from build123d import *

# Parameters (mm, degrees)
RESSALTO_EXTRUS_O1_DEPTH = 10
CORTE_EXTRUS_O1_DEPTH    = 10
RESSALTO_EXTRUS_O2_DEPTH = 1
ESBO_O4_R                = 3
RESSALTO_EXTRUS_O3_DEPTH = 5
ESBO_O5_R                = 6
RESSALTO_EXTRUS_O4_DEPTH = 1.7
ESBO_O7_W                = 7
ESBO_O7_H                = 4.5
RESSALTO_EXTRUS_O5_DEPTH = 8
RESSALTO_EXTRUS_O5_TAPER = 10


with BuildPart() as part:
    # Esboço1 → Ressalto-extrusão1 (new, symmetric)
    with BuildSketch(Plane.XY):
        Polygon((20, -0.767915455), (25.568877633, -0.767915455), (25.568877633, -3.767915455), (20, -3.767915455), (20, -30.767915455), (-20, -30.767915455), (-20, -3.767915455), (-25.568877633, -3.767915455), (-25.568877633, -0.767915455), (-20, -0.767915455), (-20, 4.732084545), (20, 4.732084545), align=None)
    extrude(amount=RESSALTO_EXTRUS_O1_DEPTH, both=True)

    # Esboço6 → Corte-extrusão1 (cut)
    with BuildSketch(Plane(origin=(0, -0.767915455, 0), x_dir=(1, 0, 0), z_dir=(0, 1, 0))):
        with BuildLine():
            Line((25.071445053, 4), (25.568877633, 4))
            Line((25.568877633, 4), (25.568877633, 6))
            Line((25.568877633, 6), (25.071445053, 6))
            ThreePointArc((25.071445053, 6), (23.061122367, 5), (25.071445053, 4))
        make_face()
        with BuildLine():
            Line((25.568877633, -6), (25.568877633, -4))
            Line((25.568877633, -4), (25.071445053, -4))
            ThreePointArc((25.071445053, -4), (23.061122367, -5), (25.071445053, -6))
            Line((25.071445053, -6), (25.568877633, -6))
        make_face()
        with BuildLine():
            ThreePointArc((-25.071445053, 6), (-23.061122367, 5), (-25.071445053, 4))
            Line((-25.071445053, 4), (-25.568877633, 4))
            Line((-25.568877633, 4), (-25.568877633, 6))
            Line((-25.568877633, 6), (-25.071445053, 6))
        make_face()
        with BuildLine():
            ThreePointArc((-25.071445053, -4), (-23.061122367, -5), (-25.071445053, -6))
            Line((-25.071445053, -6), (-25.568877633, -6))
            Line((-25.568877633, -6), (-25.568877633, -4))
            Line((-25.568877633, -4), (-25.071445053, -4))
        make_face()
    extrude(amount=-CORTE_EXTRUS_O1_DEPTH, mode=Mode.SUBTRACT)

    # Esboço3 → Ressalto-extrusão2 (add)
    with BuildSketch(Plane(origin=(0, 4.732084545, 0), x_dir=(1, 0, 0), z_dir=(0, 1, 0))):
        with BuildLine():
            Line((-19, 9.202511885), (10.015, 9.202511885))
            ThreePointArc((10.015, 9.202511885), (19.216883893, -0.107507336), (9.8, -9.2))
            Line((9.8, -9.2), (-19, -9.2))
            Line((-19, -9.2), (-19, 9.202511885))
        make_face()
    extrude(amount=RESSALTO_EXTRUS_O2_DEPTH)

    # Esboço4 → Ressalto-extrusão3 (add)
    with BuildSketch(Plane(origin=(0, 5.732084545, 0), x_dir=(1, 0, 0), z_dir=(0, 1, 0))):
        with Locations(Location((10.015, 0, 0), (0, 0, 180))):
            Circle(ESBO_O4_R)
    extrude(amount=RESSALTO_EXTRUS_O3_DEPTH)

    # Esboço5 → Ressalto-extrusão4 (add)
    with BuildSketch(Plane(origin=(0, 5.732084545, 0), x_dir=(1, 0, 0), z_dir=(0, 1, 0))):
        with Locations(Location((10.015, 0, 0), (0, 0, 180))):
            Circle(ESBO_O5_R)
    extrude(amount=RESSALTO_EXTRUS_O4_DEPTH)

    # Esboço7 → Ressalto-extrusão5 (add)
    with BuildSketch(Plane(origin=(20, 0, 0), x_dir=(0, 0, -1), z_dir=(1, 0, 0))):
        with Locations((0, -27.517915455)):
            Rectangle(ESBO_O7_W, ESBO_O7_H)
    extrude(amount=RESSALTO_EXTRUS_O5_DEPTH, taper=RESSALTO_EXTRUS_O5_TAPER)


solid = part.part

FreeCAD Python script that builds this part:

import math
import FreeCAD as App
import Part
import Sketcher

V = App.Vector
Q = App.Units.Quantity


def add_polygon(sketch, points):
    """Adds a closed chain of lines whose ends are joined by coincident constraints."""
    first, n = sketch.GeometryCount, len(points)
    for a, b in zip(points, points[1:] + points[:1]):
        sketch.addGeometry(Part.LineSegment(App.Vector(*a, 0), App.Vector(*b, 0)), False)
    for i in range(n):
        sketch.addConstraint(Sketcher.Constraint("Coincident", first + i, 2, first + (i + 1) % n, 1))

doc = App.newDocument("Part")
params = doc.addObject("Spreadsheet::Sheet", "Params")
for row, (alias, value) in enumerate([
    ("sketch1_width", "40 mm"),
    ("sketch1_height", "3 mm"),
    ("sketch1_height2", "27 mm"),
    ("sketch1_height3", "5.5 mm"),
    ("pad1_length", "20 mm"),
    ("sketch2_height", "2 mm"),
    ("pocket1_length", "10 mm"),
    ("sketch3_width", "28.8 mm"),
    ("pad2_length", "1 mm"),
    ("sketch4_diameter", "6 mm"),
    ("pad3_length", "5 mm"),
    ("sketch5_diameter", "12 mm"),
    ("pad4_length", "1.7 mm"),
    ("sketch6_height", "7 mm"),
    ("sketch6_width", "4.5 mm"),
    ("pad5_length", "8 mm"),
    ("pad5_taper", "-10 deg"),
], start=1):
    params.set(f"A{row}", alias)
    params.set(f"B{row}", "=" + value)
    params.setAlias(f"B{row}", alias)

body = doc.addObject("PartDesign::Body", "Body")

# Sketch on XY plane
sketch1 = doc.addObject("Sketcher::SketchObject", "Sketch")
body.addObject(sketch1)
sketch1.AttachmentSupport = (doc.XY_Plane, [""])
sketch1.MapMode = "FlatFace"
add_polygon(sketch1, [(25.568878, -0.767915), (20, -0.767915), (20, 4.732085), (-20, 4.732085), (-20, -0.767915), (-25.568878, -0.767915), (-25.568878, -3.767915), (-20, -3.767915), (-20, -30.767915), (20, -30.767915), (20, -3.767915), (25.568878, -3.767915)])  # lines 0-11
sketch1.addConstraint([
    Sketcher.Constraint("Horizontal", 0),
    Sketcher.Constraint("Vertical", 1),
    Sketcher.Constraint("Horizontal", 2),
    Sketcher.Constraint("Vertical", 3),
    Sketcher.Constraint("Horizontal", 4),
    Sketcher.Constraint("Vertical", 5),
    Sketcher.Constraint("Horizontal", 6),
    Sketcher.Constraint("Vertical", 7),
    Sketcher.Constraint("Horizontal", 8),
    Sketcher.Constraint("Vertical", 9),
    Sketcher.Constraint("Horizontal", 10),
    Sketcher.Constraint("Vertical", 11),
    Sketcher.Constraint("Symmetric", 0, 2, 3, 2, -2),
    Sketcher.Constraint("Symmetric", 6, 2, 9, 2, -2),
    Sketcher.Constraint("Vertical", 3, 2, 6, 2),
    Sketcher.Constraint("Equal", 0, 4),
    Sketcher.Constraint("DistanceX", 2, 2, 2, 1, Q("40 mm")),
    Sketcher.Constraint("DistanceY", 5, 2, 5, 1, Q("3 mm")),
    Sketcher.Constraint("DistanceY", 7, 2, 7, 1, Q("27 mm")),
    Sketcher.Constraint("DistanceY", 1, 1, 1, 2, Q("5.5 mm")),
    Sketcher.Constraint("DistanceX", 0, 2, 0, 1, Q("5.568878 mm")),
    Sketcher.Constraint("DistanceY", 0, 2, -1, 1, Q("0.767915 mm")),
])
sketch1.setExpression("Constraints[28]", "Params.sketch1_width")
sketch1.setExpression("Constraints[29]", "Params.sketch1_height")
sketch1.setExpression("Constraints[30]", "Params.sketch1_height2")
sketch1.setExpression("Constraints[31]", "Params.sketch1_height3")
pad1 = doc.addObject("PartDesign::Pad", "Pad")
body.addObject(pad1)
pad1.Profile = sketch1
pad1.setExpression("Length", "Params.pad1_length")
pad1.Midplane = True

# Sketch on XZ plane
sketch2 = doc.addObject("Sketcher::SketchObject", "Sketch001")
body.addObject(sketch2)
sketch2.AttachmentSupport = (doc.XZ_Plane, [""])
sketch2.MapMode = "FlatFace"
sketch2.AttachmentOffset = App.Placement(V(0, 0, 0.767915), App.Rotation())
sketch2.addGeometry([
    Part.LineSegment(V(25.071445, -4, 0), V(25.568878, -4, 0)),  # 0
    Part.LineSegment(V(25.568878, -4, 0), V(25.568878, -6, 0)),  # 1
    Part.LineSegment(V(25.568878, -6, 0), V(25.071445, -6, 0)),  # 2
    Part.ArcOfCircle(Part.Circle(V(24.315, -5, 0), V(0, 0, 1), 1.253878), math.radians(52.894497), math.radians(307.105503)),  # 3
    Part.LineSegment(V(25.568878, 6, 0), V(25.568878, 4, 0)),  # 4
    Part.LineSegment(V(25.568878, 4, 0), V(25.071445, 4, 0)),  # 5
    Part.ArcOfCircle(Part.Circle(V(24.315, 5, 0), V(0, 0, 1), 1.253878), math.radians(52.894497), math.radians(307.105503)),  # 6
    Part.LineSegment(V(25.071445, 6, 0), V(25.568878, 6, 0)),  # 7
    Part.ArcOfCircle(Part.Circle(V(-24.315, -5, 0), V(0, 0, 1), 1.253878), math.radians(-127.105503), math.radians(127.105503)),  # 8
    Part.LineSegment(V(-25.071445, -6, 0), V(-25.568878, -6, 0)),  # 9
    Part.LineSegment(V(-25.568878, -6, 0), V(-25.568878, -4, 0)),  # 10
    Part.LineSegment(V(-25.568878, -4, 0), V(-25.071445, -4, 0)),  # 11
    Part.ArcOfCircle(Part.Circle(V(-24.315, 5, 0), V(0, 0, 1), 1.253878), math.radians(-127.105503), math.radians(127.105503)),  # 12
    Part.LineSegment(V(-25.071445, 4, 0), V(-25.568878, 4, 0)),  # 13
    Part.LineSegment(V(-25.568878, 4, 0), V(-25.568878, 6, 0)),  # 14
    Part.LineSegment(V(-25.568878, 6, 0), V(-25.071445, 6, 0)),  # 15
], False)
sketch2.addConstraint([
    Sketcher.Constraint("Coincident", 0, 2, 1, 1),
    Sketcher.Constraint("Coincident", 1, 2, 2, 1),
    Sketcher.Constraint("Coincident", 2, 2, 3, 2),
    Sketcher.Constraint("Coincident", 3, 1, 0, 1),
    Sketcher.Constraint("Coincident", 4, 2, 5, 1),
    Sketcher.Constraint("Coincident", 5, 2, 6, 2),
    Sketcher.Constraint("Coincident", 6, 1, 7, 1),
    Sketcher.Constraint("Coincident", 7, 2, 4, 1),
    Sketcher.Constraint("Coincident", 8, 1, 9, 1),
    Sketcher.Constraint("Coincident", 9, 2, 10, 1),
    Sketcher.Constraint("Coincident", 10, 2, 11, 1),
    Sketcher.Constraint("Coincident", 11, 2, 8, 2),
    Sketcher.Constraint("Coincident", 12, 1, 13, 1),
    Sketcher.Constraint("Coincident", 13, 2, 14, 1),
    Sketcher.Constraint("Coincident", 14, 2, 15, 1),
    Sketcher.Constraint("Coincident", 15, 2, 12, 2),
    Sketcher.Constraint("Horizontal", 0),
    Sketcher.Constraint("Vertical", 1),
    Sketcher.Constraint("Horizontal", 2),
    Sketcher.Constraint("Vertical", 4),
    Sketcher.Constraint("Horizontal", 5),
    Sketcher.Constraint("Horizontal", 7),
    Sketcher.Constraint("Horizontal", 9),
    Sketcher.Constraint("Vertical", 10),
    Sketcher.Constraint("Horizontal", 11),
    Sketcher.Constraint("Horizontal", 13),
    Sketcher.Constraint("Vertical", 14),
    Sketcher.Constraint("Horizontal", 15),
    Sketcher.Constraint("Equal", 3, 6),
    Sketcher.Constraint("Equal", 6, 8),
    Sketcher.Constraint("Equal", 8, 12),
    Sketcher.Constraint("Symmetric", 6, 3, 8, 3, -1, 1),
    Sketcher.Constraint("Symmetric", 3, 3, 12, 3, -1, 1),
    Sketcher.Constraint("Symmetric", 7, 2, 9, 2, -1, 1),
    Sketcher.Constraint("Symmetric", 0, 2, 13, 2, -1, 1),
    Sketcher.Constraint("Symmetric", 3, 3, 8, 3, -2),
    Sketcher.Constraint("Symmetric", 1, 2, 9, 2, -2),
    Sketcher.Constraint("Horizontal", 3, 1, 10, 2),
    Sketcher.Constraint("Horizontal", 5, 2, 12, 1),
    Sketcher.Constraint("Horizontal", 7, 2, 14, 2),
    Sketcher.Constraint("Vertical", 2, 2, 3, 1),
    Sketcher.Constraint("DistanceY", 1, 2, 1, 1, Q("2 mm")),
    Sketcher.Constraint("DistanceY", 3, 3, -1, 1, Q("5 mm")),
    Sketcher.Constraint("DistanceX", 8, 3, 3, 3, Q("48.63 mm")),
    Sketcher.Constraint("Radius", 3, Q("1.253878 mm")),
    Sketcher.Constraint("DistanceX", 0, 1, 0, 2, Q("0.497433 mm")),
])
sketch2.setExpression("Constraints[41]", "Params.sketch2_height")
pocket1 = doc.addObject("PartDesign::Pocket", "Pocket")
body.addObject(pocket1)
pocket1.Profile = sketch2
pocket1.setExpression("Length", "Params.pocket1_length")
pocket1.Reversed = True

# Sketch on XZ plane
sketch3 = doc.addObject("Sketcher::SketchObject", "Sketch002")
body.addObject(sketch3)
sketch3.AttachmentSupport = (doc.XZ_Plane, [""])
sketch3.MapMode = "FlatFace"
sketch3.AttachmentOffset = App.Placement(V(0, 0, -4.732085), App.Rotation())
sketch3.addGeometry([
    Part.LineSegment(V(10.015, -9.202512, 0), V(-19, -9.202512, 0)),
    Part.LineSegment(V(-19, -9.202512, 0), V(-19, 9.2, 0)),
    Part.LineSegment(V(-19, 9.2, 0), V(9.8, 9.2, 0)),
    Part.ArcOfCircle(Part.Circle(V(10.015, 0, 0), V(0, 0, 1), 9.202512), math.radians(-90), math.radians(91.338734)),
], False)
sketch3.addConstraint([
    Sketcher.Constraint("Coincident", 0, 2, 1, 1),
    Sketcher.Constraint("Coincident", 1, 2, 2, 1),
    Sketcher.Constraint("Coincident", 2, 2, 3, 2),
    Sketcher.Constraint("Tangent", 3, 1, 0, 1),
    Sketcher.Constraint("Horizontal", 0),
    Sketcher.Constraint("Vertical", 1),
    Sketcher.Constraint("Horizontal", 2),
    Sketcher.Constraint("PointOnObject", 3, 3, -1),
    Sketcher.Constraint("DistanceX", 2, 1, 2, 2, Q("28.8 mm")),
    Sketcher.Constraint("DistanceX", 0, 2, -1, 1, Q("19 mm")),
    Sketcher.Constraint("DistanceY", -1, 1, 1, 2, Q("9.2 mm")),
    Sketcher.Constraint("DistanceX", 0, 2, 0, 1, Q("29.015 mm")),
])
sketch3.setExpression("Constraints[8]", "Params.sketch3_width")
pad2 = doc.addObject("PartDesign::Pad", "Pad001")
body.addObject(pad2)
pad2.Profile = sketch3
pad2.setExpression("Length", "Params.pad2_length")
pad2.Reversed = True

# Sketch on XZ plane
sketch4 = doc.addObject("Sketcher::SketchObject", "Sketch003")
body.addObject(sketch4)
sketch4.AttachmentSupport = (doc.XZ_Plane, [""])
sketch4.MapMode = "FlatFace"
sketch4.AttachmentOffset = App.Placement(V(0, 0, -5.732085), App.Rotation())
sketch4.addGeometry(Part.Circle(V(10.015, 0, 0), V(0, 0, 1), 3), False)
sketch4.addConstraint([
    Sketcher.Constraint("PointOnObject", 0, 3, -1),
    Sketcher.Constraint("Diameter", 0, Q("6 mm")),
    Sketcher.Constraint("DistanceX", -1, 1, 0, 3, Q("10.015 mm")),
])
sketch4.setExpression("Constraints[1]", "Params.sketch4_diameter")
pad3 = doc.addObject("PartDesign::Pad", "Pad002")
body.addObject(pad3)
pad3.Profile = sketch4
pad3.setExpression("Length", "Params.pad3_length")
pad3.Reversed = True

# Sketch on XZ plane
sketch5 = doc.addObject("Sketcher::SketchObject", "Sketch004")
body.addObject(sketch5)
sketch5.AttachmentSupport = (doc.XZ_Plane, [""])
sketch5.MapMode = "FlatFace"
sketch5.AttachmentOffset = App.Placement(V(0, 0, -5.732085), App.Rotation())
sketch5.addGeometry(Part.Circle(V(10.015, 0, 0), V(0, 0, 1), 6), False)
sketch5.addConstraint([
    Sketcher.Constraint("PointOnObject", 0, 3, -1),
    Sketcher.Constraint("Diameter", 0, Q("12 mm")),
    Sketcher.Constraint("DistanceX", -1, 1, 0, 3, Q("10.015 mm")),
])
sketch5.setExpression("Constraints[1]", "Params.sketch5_diameter")
pad4 = doc.addObject("PartDesign::Pad", "Pad003")
body.addObject(pad4)
pad4.Profile = sketch5
pad4.setExpression("Length", "Params.pad4_length")
pad4.Reversed = True

# Sketch on YZ plane
sketch6 = doc.addObject("Sketcher::SketchObject", "Sketch005")
body.addObject(sketch6)
sketch6.AttachmentSupport = (doc.YZ_Plane, [""])
sketch6.MapMode = "FlatFace"
sketch6.AttachmentOffset = App.Placement(V(0, 0, 20), App.Rotation())
add_polygon(sketch6, [(-25.267915, 3.5), (-29.767915, 3.5), (-29.767915, -3.5), (-25.267915, -3.5)])  # lines 0-3
sketch6.addConstraint([
    Sketcher.Constraint("Horizontal", 0),
    Sketcher.Constraint("Vertical", 1),
    Sketcher.Constraint("Horizontal", 2),
    Sketcher.Constraint("Vertical", 3),
    Sketcher.Constraint("DistanceY", 1, 2, 1, 1, Q("7 mm")),
    Sketcher.Constraint("DistanceX", 0, 2, 0, 1, Q("4.5 mm")),
    Sketcher.Constraint("DistanceY", -1, 1, 0, 2, Q("3.5 mm")),
    Sketcher.Constraint("DistanceX", 0, 2, -1, 1, Q("29.767915 mm")),
])
sketch6.setExpression("Constraints[8]", "Params.sketch6_height")
sketch6.setExpression("Constraints[9]", "Params.sketch6_width")
pad5 = doc.addObject("PartDesign::Pad", "Pad004")
body.addObject(pad5)
pad5.Profile = sketch6
pad5.setExpression("Length", "Params.pad5_length")
pad5.setExpression("TaperAngle", "Params.pad5_taper")

doc.recompute()
